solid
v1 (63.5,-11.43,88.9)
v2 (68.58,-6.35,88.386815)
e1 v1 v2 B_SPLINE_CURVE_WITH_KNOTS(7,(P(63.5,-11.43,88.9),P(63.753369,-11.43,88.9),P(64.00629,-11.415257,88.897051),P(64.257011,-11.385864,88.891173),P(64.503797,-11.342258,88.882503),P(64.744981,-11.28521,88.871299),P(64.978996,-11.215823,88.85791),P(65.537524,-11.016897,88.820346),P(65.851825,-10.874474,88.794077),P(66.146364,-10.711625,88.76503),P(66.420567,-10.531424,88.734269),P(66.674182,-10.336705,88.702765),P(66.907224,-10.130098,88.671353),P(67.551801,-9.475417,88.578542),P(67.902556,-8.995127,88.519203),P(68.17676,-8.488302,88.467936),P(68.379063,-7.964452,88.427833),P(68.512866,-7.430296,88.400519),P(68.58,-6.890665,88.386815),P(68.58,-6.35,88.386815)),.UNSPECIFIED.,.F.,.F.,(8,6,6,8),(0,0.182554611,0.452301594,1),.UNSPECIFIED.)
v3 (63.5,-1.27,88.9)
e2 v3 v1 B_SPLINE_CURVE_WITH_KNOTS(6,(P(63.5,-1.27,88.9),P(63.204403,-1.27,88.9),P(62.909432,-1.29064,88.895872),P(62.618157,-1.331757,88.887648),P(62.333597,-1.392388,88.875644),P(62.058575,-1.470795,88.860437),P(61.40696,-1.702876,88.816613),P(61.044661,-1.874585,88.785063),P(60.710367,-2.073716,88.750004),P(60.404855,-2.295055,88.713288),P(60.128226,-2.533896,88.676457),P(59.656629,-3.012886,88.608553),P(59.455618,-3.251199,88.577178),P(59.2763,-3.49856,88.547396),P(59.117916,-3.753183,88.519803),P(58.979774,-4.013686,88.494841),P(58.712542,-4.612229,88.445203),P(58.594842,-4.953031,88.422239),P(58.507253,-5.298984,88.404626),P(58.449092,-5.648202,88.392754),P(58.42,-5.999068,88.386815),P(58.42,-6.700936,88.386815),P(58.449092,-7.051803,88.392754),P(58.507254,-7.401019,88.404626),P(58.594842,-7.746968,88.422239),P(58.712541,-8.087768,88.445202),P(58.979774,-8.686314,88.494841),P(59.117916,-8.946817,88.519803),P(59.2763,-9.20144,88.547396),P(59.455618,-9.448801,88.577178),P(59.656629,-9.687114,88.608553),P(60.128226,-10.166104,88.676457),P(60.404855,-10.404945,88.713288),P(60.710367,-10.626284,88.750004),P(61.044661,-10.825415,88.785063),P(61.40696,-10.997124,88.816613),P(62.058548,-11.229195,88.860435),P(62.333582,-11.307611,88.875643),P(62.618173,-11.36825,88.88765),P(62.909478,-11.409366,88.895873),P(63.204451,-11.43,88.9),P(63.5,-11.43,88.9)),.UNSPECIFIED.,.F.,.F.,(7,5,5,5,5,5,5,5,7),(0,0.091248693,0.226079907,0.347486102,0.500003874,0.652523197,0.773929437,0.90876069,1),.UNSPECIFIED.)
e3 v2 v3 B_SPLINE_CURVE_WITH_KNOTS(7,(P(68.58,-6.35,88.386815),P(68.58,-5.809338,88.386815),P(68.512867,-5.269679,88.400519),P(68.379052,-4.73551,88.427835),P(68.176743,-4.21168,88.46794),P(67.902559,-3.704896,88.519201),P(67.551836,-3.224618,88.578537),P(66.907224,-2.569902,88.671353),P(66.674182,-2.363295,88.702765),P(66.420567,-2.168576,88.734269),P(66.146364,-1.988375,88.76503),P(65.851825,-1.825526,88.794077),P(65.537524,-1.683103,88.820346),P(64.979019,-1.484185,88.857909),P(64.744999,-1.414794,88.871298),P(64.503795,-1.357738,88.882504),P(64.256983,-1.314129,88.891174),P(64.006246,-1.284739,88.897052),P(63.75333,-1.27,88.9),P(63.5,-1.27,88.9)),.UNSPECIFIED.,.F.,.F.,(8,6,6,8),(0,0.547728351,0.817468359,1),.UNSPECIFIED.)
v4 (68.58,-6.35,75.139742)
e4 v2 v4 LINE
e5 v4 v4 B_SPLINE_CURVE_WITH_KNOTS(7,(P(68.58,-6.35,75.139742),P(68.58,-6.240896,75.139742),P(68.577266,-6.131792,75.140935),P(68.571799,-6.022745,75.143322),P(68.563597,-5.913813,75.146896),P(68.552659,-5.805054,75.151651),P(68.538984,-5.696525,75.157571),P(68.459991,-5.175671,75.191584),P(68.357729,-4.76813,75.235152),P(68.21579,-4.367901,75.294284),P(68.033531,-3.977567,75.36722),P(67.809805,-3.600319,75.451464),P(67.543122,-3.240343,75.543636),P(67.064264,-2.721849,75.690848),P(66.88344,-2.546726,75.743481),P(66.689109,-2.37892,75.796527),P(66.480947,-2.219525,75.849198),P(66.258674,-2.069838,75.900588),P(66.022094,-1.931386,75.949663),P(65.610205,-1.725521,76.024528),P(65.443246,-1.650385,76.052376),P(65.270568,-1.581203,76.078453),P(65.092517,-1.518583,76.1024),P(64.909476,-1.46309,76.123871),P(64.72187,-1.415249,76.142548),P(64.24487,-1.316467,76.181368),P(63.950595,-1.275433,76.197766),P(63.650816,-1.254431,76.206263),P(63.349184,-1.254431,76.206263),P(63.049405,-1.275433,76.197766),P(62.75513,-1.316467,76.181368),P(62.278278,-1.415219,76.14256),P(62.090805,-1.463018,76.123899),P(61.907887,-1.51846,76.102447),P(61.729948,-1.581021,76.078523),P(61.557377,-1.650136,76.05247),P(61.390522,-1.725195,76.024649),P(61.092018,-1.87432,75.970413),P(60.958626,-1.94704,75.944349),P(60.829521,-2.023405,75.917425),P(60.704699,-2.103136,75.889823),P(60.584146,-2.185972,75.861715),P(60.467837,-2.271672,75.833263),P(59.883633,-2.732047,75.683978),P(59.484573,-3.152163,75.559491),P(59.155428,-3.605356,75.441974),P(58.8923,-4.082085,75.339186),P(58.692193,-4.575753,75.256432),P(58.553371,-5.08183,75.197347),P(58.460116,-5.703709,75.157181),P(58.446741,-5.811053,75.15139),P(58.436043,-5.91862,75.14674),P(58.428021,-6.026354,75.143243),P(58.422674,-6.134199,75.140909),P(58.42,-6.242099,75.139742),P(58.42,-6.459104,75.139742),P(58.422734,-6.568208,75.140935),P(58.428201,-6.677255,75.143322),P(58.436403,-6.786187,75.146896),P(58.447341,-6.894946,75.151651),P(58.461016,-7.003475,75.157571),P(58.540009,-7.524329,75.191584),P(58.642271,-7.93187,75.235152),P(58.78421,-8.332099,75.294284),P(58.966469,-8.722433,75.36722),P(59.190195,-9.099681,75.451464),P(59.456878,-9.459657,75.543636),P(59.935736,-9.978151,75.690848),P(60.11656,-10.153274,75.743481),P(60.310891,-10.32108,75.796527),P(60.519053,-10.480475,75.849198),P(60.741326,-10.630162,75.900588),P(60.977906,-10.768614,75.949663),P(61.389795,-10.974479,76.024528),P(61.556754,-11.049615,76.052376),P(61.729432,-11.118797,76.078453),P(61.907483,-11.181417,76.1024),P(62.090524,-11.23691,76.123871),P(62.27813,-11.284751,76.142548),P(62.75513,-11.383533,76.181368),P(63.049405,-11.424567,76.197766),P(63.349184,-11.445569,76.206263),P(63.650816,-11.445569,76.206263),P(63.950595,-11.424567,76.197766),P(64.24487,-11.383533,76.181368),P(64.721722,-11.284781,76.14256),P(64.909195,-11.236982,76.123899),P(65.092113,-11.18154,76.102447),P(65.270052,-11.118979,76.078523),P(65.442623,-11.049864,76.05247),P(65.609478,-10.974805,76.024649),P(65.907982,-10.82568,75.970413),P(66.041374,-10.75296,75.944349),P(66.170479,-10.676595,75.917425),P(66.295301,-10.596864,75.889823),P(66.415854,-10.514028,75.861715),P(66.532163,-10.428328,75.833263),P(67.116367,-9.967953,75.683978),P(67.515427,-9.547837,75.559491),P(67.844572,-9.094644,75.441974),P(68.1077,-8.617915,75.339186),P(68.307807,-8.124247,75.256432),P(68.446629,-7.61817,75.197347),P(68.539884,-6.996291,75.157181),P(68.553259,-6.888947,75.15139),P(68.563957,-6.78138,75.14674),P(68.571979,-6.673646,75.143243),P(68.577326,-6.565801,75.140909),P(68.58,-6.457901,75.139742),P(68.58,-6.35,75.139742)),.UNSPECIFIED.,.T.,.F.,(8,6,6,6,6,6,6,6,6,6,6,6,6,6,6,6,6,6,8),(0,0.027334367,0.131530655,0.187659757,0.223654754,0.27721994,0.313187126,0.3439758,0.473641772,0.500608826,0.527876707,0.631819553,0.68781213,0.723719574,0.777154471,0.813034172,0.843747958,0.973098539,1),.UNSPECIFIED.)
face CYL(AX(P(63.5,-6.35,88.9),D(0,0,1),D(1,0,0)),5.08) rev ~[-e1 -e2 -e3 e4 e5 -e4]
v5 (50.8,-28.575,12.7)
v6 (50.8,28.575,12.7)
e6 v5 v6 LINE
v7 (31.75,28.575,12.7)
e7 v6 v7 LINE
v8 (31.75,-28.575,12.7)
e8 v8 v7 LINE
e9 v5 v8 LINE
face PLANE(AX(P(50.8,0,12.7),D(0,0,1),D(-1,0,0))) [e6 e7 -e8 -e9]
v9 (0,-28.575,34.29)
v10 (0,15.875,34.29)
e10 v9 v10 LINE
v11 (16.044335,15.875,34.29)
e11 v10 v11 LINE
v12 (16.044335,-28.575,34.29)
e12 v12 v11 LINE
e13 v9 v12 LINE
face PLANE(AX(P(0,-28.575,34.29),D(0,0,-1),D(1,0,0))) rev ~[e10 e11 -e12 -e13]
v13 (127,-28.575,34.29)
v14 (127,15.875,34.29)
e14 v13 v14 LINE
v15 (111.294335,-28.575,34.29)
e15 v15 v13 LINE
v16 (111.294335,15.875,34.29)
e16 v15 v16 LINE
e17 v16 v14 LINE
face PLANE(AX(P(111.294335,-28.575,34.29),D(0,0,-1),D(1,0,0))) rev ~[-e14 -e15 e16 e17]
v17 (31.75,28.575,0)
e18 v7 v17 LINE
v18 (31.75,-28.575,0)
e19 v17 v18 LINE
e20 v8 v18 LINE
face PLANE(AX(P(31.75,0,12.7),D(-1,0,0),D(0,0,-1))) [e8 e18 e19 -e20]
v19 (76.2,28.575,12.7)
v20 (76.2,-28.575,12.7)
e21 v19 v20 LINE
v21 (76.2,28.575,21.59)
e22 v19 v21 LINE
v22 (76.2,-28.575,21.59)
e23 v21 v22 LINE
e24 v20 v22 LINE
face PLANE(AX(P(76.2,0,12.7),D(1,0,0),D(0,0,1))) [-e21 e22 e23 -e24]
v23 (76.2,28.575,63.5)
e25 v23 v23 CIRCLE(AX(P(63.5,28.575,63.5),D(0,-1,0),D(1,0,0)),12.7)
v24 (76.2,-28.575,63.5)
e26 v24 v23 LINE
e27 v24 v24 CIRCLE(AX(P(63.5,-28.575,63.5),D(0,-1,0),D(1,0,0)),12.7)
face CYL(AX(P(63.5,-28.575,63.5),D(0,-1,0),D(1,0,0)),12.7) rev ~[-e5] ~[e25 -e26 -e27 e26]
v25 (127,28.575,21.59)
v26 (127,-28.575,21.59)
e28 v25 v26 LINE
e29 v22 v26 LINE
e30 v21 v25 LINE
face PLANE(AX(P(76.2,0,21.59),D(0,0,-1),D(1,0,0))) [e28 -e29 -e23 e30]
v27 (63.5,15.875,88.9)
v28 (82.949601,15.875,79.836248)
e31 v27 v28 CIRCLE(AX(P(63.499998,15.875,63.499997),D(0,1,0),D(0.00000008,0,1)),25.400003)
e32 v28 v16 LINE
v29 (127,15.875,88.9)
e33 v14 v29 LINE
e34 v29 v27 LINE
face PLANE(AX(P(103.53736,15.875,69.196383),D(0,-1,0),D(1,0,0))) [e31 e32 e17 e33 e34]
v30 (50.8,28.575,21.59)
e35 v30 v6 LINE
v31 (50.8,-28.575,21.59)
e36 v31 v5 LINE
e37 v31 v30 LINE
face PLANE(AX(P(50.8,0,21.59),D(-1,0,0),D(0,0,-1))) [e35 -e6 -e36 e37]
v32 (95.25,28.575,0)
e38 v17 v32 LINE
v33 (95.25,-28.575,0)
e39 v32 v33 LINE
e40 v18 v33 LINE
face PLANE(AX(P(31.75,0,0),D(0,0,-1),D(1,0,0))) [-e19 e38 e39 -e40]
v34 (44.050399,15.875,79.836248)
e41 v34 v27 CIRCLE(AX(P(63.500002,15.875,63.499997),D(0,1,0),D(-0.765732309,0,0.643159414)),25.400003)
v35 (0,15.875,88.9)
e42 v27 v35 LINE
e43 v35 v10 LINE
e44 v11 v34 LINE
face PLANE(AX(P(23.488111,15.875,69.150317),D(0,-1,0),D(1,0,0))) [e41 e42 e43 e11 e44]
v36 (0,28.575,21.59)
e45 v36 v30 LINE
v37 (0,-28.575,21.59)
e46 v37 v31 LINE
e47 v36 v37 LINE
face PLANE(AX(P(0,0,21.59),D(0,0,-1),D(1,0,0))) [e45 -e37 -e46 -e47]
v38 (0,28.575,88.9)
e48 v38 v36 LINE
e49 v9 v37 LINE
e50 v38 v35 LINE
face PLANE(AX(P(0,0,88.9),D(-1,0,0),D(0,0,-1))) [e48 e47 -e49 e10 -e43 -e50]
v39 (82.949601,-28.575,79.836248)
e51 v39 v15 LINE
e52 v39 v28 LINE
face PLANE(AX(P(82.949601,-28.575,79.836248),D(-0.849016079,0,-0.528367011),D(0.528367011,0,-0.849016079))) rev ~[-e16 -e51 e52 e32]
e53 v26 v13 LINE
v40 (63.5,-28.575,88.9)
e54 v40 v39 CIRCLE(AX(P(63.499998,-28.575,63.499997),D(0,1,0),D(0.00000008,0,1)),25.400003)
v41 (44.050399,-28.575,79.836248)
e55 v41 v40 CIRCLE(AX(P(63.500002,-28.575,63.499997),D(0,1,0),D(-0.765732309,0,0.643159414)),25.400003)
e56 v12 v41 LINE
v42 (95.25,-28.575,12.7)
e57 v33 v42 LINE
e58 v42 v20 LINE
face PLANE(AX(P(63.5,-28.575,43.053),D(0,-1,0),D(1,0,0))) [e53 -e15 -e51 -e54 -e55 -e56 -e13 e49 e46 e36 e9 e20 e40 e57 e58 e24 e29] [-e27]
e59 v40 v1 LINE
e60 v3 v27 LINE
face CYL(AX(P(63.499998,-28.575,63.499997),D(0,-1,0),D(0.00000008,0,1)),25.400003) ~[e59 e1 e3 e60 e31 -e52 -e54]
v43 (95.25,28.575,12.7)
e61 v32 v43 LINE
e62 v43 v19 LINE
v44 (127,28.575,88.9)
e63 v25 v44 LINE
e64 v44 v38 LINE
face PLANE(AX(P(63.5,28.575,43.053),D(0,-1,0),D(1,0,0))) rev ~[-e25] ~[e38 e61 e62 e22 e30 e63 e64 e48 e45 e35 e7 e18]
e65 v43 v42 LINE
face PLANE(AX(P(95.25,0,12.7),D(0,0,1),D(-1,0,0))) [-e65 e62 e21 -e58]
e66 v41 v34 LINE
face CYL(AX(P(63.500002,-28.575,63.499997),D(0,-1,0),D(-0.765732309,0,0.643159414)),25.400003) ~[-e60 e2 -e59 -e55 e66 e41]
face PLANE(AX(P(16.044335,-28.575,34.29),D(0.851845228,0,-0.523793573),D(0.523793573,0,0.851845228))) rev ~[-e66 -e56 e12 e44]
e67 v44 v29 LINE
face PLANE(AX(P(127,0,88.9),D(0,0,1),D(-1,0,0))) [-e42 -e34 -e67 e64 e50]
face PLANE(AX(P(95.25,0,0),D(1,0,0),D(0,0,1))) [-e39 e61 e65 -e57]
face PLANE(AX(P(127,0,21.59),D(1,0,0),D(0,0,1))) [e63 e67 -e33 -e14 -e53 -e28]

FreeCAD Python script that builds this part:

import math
import FreeCAD as App
import Part
import Sketcher
Q = App.Units.Quantity


def add_polygon(sketch, points):
    """Adds a closed chain of lines whose ends are joined by coincident constraints."""
    first, n = sketch.GeometryCount, len(points)
    for a, b in zip(points, points[1:] + points[:1]):
        sketch.addGeometry(Part.LineSegment(App.Vector(*a, 0), App.Vector(*b, 0)), False)
    for i in range(n):
        sketch.addConstraint(Sketcher.Constraint("Coincident", first + i, 2, first + (i + 1) % n, 1))

doc = App.newDocument("Part")
params = doc.addObject("Spreadsheet::Sheet", "Params")
for row, (alias, value) in enumerate([
    ("sketch1_width", "2 in"),
    ("sketch1_width2", "5 in"),
    ("sketch1_width3", "2.5 in"),
    ("sketch1_height", "0.5 in"),
    ("sketch1_height2", "0.35 in"),
    ("pad1_length", "2.25 in"),
    ("sketch2_radius", "1.0000001 in"),
    ("sketch2_width", "2.5 in"),
    ("sketch2_height", "2.15 in"),
    ("pocket1_length", "1.75 in"),
    ("sketch3_diameter", "1 in"),
    ("pocket2_length", "2.25 in"),
    ("sketch4_diameter", "0.4 in"),
    ("pocket3_length", "1 in"),
], start=1):
    params.set(f"A{row}", alias)
    params.set(f"B{row}", "=" + value)
    params.setAlias(f"B{row}", alias)

body = doc.addObject("PartDesign::Body", "Body")

# Sketch on XZ plane
sketch1 = doc.addObject("Sketcher::SketchObject", "Sketch")
body.addObject(sketch1)
sketch1.AttachmentSupport = (doc.XZ_Plane, [""])
sketch1.MapMode = "FlatFace"
add_polygon(sketch1, [(31.75, 12.7), (31.75, 0), (95.25, 0), (95.25, 12.7), (76.2, 12.7), (76.2, 21.59), (127, 21.59), (127, 88.9), (0, 88.9), (0, 21.59), (50.8, 21.59), (50.8, 12.7)])  # lines 0-11
sketch1.addConstraint(Sketcher.Constraint("Vertical", 0))
sketch1.addConstraint(Sketcher.Constraint("Horizontal", 1))
sketch1.addConstraint(Sketcher.Constraint("Vertical", 2))
sketch1.addConstraint(Sketcher.Constraint("Horizontal", 3))
sketch1.addConstraint(Sketcher.Constraint("Vertical", 4))
sketch1.addConstraint(Sketcher.Constraint("Horizontal", 5))
sketch1.addConstraint(Sketcher.Constraint("Vertical", 6))
sketch1.addConstraint(Sketcher.Constraint("Horizontal", 7))
sketch1.addConstraint(Sketcher.Constraint("Vertical", 8))
sketch1.addConstraint(Sketcher.Constraint("Horizontal", 9))
sketch1.addConstraint(Sketcher.Constraint("Vertical", 10))
sketch1.addConstraint(Sketcher.Constraint("Horizontal", 11))
sketch1.addConstraint(Sketcher.Constraint("PointOnObject", 0, 2, -1))
sketch1.addConstraint(Sketcher.Constraint("PointOnObject", 7, 2, -2))
sketch1.addConstraint(Sketcher.Constraint("Horizontal", 5, 2, 8, 2))
sketch1.addConstraint(Sketcher.Constraint("Horizontal", 3, 2, 10, 2))
sketch1.addConstraint(Sketcher.Constraint("Equal", 5, 9))
sketch1.addConstraint(Sketcher.Constraint("Equal", 3, 11))
sketch1.addConstraint(Sketcher.Constraint("DistanceX", 5, 1, 5, 2, Q("2 in")))
sketch1.addConstraint(Sketcher.Constraint("DistanceX", 7, 2, 7, 1, Q("5 in")))
sketch1.addConstraint(Sketcher.Constraint("DistanceX", 1, 1, 1, 2, Q("2.5 in")))
sketch1.addConstraint(Sketcher.Constraint("DistanceY", 0, 2, 0, 1, Q("0.5 in")))
sketch1.addConstraint(Sketcher.Constraint("DistanceY", 2, 2, 6, 2, Q("3 in")))
sketch1.addConstraint(Sketcher.Constraint("DistanceY", 4, 1, 4, 2, Q("0.35 in")))
sketch1.setExpression("Constraints[30]", "Params.sketch1_width")
sketch1.setExpression("Constraints[31]", "Params.sketch1_width2")
sketch1.setExpression("Constraints[32]", "Params.sketch1_width3")
sketch1.setExpression("Constraints[33]", "Params.sketch1_height")
sketch1.setExpression("Constraints[35]", "Params.sketch1_height2")
pad1 = doc.addObject("PartDesign::Pad", "Pad")
body.addObject(pad1)
pad1.Profile = sketch1
pad1.setExpression("Length", "Params.pad1_length")
pad1.Midplane = True

# Sketch on XZ plane
sketch2 = doc.addObject("Sketcher::SketchObject", "Sketch001")
body.addObject(sketch2)
sketch2.AttachmentSupport = (doc.XZ_Plane, [""])
sketch2.MapMode = "FlatFace"
sketch2.AttachmentOffset = App.Placement(App.Vector(0, 0, 1.125 * 25.4), App.Rotation())
sketch2.addGeometry(Part.LineSegment(App.Vector(0, 88.9, 0), App.Vector(0, 34.29, 0)), False)
sketch2.addGeometry(Part.LineSegment(App.Vector(0, 34.29, 0), App.Vector(16.044335, 34.29, 0)), False)
sketch2.addGeometry(Part.LineSegment(App.Vector(16.044335, 34.29, 0), App.Vector(44.050399, 79.836248, 0)), False)
sketch2.addGeometry(Part.ArcOfCircle(Part.Circle(App.Vector(63.500002, 63.499997, 0), App.Vector(0, 0, 1), 25.400003), math.radians(90.000005), math.radians(139.972185)), False)
sketch2.addGeometry(Part.LineSegment(App.Vector(63.5, 88.9, 0), App.Vector(0, 88.9, 0)), False)
sketch2.addGeometry(Part.LineSegment(App.Vector(127, 88.9, 0), App.Vector(63.5, 88.9, 0)), False)
sketch2.addGeometry(Part.ArcOfCircle(Part.Circle(App.Vector(63.499998, 63.499997, 0), App.Vector(0, 0, 1), 25.400003), math.radians(40.027815), math.radians(89.999995)), False)
sketch2.addGeometry(Part.LineSegment(App.Vector(82.949601, 79.836248, 0), App.Vector(111.294335, 34.29, 0)), False)
sketch2.addGeometry(Part.LineSegment(App.Vector(111.294335, 34.29, 0), App.Vector(127, 34.29, 0)), False)
sketch2.addGeometry(Part.LineSegment(App.Vector(127, 34.29, 0), App.Vector(127, 88.9, 0)), False)
sketch2.addConstraint(Sketcher.Constraint("Coincident", 0, 2, 1, 1))
sketch2.addConstraint(Sketcher.Constraint("Coincident", 1, 2, 2, 1))
sketch2.addConstraint(Sketcher.Constraint("Coincident", 2, 2, 3, 2))
sketch2.addConstraint(Sketcher.Constraint("Tangent", 3, 1, 4, 1))
sketch2.addConstraint(Sketcher.Constraint("Coincident", 4, 2, 0, 1))
sketch2.addConstraint(Sketcher.Constraint("Tangent", 5, 2, 6, 2))
sketch2.addConstraint(Sketcher.Constraint("Coincident", 6, 1, 7, 1))
sketch2.addConstraint(Sketcher.Constraint("Coincident", 7, 2, 8, 1))
sketch2.addConstraint(Sketcher.Constraint("Coincident", 8, 2, 9, 1))
sketch2.addConstraint(Sketcher.Constraint("Coincident", 9, 2, 5, 1))
sketch2.addConstraint(Sketcher.Constraint("Vertical", 0))
sketch2.addConstraint(Sketcher.Constraint("Horizontal", 1))
sketch2.addConstraint(Sketcher.Constraint("Horizontal", 4))
sketch2.addConstraint(Sketcher.Constraint("Horizontal", 5))
sketch2.addConstraint(Sketcher.Constraint("Horizontal", 8))
sketch2.addConstraint(Sketcher.Constraint("Vertical", 9))
sketch2.addConstraint(Sketcher.Constraint("Coincident", 6, 3, 3, 3))
sketch2.addConstraint(Sketcher.Constraint("Equal", 3, 6))
sketch2.addConstraint(Sketcher.Constraint("PointOnObject", 0, 2, -2))
sketch2.addConstraint(Sketcher.Constraint("Horizontal", 2, 2, 6, 1))
sketch2.addConstraint(Sketcher.Constraint("Horizontal", 1, 2, 7, 2))
sketch2.addConstraint(Sketcher.Constraint("Equal", 4, 5))
sketch2.addConstraint(Sketcher.Constraint("Radius", 3, Q("1.0000001 in")))
sketch2.addConstraint(Sketcher.Constraint("DistanceX", 4, 2, 4, 1, Q("2.5 in")))
sketch2.addConstraint(Sketcher.Constraint("DistanceY", 0, 2, 0, 1, Q("2.15 in")))
sketch2.addConstraint(Sketcher.Constraint("DistanceY", -1, 1, 3, 3, Q("2.4999999 in")))
sketch2.addConstraint(Sketcher.Constraint("DistanceX", -1, 1, 2, 2, Q("44.050399 mm")))
sketch2.addConstraint(Sketcher.Constraint("Distance", 2, Q("53.46775 mm")))
sketch2.addConstraint(Sketcher.Constraint("Distance", 7, Q("53.645919 mm")))
sketch2.setExpression("Constraints[22]", "Params.sketch2_radius")
sketch2.setExpression("Constraints[23]", "Params.sketch2_width")
sketch2.setExpression("Constraints[24]", "Params.sketch2_height")
pocket1 = doc.addObject("PartDesign::Pocket", "Pocket")
body.addObject(pocket1)
pocket1.Profile = sketch2
pocket1.setExpression("Length", "Params.pocket1_length")

# Sketch on XZ plane
sketch3 = doc.addObject("Sketcher::SketchObject", "Sketch002")
body.addObject(sketch3)
sketch3.AttachmentSupport = (doc.XZ_Plane, [""])
sketch3.MapMode = "FlatFace"
sketch3.AttachmentOffset = App.Placement(App.Vector(0, 0, 1.125 * 25.4), App.Rotation())
sketch3.addGeometry(Part.Circle(App.Vector(63.5, 63.5, 0), App.Vector(0, 0, 1), 12.7), False)
sketch3.addConstraint(Sketcher.Constraint("Diameter", 0, Q("1 in")))
sketch3.addConstraint(Sketcher.Constraint("DistanceX", -1, 1, 0, 3, Q("2.5 in")))
sketch3.addConstraint(Sketcher.Constraint("DistanceY", -1, 1, 0, 3, Q("2.5 in")))
sketch3.setExpression("Constraints[0]", "Params.sketch3_diameter")
pocket2 = doc.addObject("PartDesign::Pocket", "Pocket001")
body.addObject(pocket2)
pocket2.Profile = sketch3
pocket2.setExpression("Length", "Params.pocket2_length")

# Sketch on XY plane
sketch4 = doc.addObject("Sketcher::SketchObject", "Sketch003")
body.addObject(sketch4)
sketch4.AttachmentSupport = (doc.XY_Plane, [""])
sketch4.MapMode = "FlatFace"
sketch4.AttachmentOffset = App.Placement(App.Vector(0, 0, 3.5 * 25.4), App.Rotation())
sketch4.addGeometry(Part.Circle(App.Vector(63.5, -6.35, 0), App.Vector(0, 0, 1), 5.08), False)
sketch4.addConstraint(Sketcher.Constraint("Diameter", 0, Q("0.4 in")))
sketch4.addConstraint(Sketcher.Constraint("DistanceX", -1, 1, 0, 3, Q("2.5 in")))
sketch4.addConstraint(Sketcher.Constraint("DistanceY", 0, 3, -1, 1, Q("0.25 in")))
sketch4.setExpression("Constraints[0]", "Params.sketch4_diameter")
pocket3 = doc.addObject("PartDesign::Pocket", "Pocket002")
body.addObject(pocket3)
pocket3.Profile = sketch4
pocket3.setExpression("Length", "Params.pocket3_length")

doc.recompute()
